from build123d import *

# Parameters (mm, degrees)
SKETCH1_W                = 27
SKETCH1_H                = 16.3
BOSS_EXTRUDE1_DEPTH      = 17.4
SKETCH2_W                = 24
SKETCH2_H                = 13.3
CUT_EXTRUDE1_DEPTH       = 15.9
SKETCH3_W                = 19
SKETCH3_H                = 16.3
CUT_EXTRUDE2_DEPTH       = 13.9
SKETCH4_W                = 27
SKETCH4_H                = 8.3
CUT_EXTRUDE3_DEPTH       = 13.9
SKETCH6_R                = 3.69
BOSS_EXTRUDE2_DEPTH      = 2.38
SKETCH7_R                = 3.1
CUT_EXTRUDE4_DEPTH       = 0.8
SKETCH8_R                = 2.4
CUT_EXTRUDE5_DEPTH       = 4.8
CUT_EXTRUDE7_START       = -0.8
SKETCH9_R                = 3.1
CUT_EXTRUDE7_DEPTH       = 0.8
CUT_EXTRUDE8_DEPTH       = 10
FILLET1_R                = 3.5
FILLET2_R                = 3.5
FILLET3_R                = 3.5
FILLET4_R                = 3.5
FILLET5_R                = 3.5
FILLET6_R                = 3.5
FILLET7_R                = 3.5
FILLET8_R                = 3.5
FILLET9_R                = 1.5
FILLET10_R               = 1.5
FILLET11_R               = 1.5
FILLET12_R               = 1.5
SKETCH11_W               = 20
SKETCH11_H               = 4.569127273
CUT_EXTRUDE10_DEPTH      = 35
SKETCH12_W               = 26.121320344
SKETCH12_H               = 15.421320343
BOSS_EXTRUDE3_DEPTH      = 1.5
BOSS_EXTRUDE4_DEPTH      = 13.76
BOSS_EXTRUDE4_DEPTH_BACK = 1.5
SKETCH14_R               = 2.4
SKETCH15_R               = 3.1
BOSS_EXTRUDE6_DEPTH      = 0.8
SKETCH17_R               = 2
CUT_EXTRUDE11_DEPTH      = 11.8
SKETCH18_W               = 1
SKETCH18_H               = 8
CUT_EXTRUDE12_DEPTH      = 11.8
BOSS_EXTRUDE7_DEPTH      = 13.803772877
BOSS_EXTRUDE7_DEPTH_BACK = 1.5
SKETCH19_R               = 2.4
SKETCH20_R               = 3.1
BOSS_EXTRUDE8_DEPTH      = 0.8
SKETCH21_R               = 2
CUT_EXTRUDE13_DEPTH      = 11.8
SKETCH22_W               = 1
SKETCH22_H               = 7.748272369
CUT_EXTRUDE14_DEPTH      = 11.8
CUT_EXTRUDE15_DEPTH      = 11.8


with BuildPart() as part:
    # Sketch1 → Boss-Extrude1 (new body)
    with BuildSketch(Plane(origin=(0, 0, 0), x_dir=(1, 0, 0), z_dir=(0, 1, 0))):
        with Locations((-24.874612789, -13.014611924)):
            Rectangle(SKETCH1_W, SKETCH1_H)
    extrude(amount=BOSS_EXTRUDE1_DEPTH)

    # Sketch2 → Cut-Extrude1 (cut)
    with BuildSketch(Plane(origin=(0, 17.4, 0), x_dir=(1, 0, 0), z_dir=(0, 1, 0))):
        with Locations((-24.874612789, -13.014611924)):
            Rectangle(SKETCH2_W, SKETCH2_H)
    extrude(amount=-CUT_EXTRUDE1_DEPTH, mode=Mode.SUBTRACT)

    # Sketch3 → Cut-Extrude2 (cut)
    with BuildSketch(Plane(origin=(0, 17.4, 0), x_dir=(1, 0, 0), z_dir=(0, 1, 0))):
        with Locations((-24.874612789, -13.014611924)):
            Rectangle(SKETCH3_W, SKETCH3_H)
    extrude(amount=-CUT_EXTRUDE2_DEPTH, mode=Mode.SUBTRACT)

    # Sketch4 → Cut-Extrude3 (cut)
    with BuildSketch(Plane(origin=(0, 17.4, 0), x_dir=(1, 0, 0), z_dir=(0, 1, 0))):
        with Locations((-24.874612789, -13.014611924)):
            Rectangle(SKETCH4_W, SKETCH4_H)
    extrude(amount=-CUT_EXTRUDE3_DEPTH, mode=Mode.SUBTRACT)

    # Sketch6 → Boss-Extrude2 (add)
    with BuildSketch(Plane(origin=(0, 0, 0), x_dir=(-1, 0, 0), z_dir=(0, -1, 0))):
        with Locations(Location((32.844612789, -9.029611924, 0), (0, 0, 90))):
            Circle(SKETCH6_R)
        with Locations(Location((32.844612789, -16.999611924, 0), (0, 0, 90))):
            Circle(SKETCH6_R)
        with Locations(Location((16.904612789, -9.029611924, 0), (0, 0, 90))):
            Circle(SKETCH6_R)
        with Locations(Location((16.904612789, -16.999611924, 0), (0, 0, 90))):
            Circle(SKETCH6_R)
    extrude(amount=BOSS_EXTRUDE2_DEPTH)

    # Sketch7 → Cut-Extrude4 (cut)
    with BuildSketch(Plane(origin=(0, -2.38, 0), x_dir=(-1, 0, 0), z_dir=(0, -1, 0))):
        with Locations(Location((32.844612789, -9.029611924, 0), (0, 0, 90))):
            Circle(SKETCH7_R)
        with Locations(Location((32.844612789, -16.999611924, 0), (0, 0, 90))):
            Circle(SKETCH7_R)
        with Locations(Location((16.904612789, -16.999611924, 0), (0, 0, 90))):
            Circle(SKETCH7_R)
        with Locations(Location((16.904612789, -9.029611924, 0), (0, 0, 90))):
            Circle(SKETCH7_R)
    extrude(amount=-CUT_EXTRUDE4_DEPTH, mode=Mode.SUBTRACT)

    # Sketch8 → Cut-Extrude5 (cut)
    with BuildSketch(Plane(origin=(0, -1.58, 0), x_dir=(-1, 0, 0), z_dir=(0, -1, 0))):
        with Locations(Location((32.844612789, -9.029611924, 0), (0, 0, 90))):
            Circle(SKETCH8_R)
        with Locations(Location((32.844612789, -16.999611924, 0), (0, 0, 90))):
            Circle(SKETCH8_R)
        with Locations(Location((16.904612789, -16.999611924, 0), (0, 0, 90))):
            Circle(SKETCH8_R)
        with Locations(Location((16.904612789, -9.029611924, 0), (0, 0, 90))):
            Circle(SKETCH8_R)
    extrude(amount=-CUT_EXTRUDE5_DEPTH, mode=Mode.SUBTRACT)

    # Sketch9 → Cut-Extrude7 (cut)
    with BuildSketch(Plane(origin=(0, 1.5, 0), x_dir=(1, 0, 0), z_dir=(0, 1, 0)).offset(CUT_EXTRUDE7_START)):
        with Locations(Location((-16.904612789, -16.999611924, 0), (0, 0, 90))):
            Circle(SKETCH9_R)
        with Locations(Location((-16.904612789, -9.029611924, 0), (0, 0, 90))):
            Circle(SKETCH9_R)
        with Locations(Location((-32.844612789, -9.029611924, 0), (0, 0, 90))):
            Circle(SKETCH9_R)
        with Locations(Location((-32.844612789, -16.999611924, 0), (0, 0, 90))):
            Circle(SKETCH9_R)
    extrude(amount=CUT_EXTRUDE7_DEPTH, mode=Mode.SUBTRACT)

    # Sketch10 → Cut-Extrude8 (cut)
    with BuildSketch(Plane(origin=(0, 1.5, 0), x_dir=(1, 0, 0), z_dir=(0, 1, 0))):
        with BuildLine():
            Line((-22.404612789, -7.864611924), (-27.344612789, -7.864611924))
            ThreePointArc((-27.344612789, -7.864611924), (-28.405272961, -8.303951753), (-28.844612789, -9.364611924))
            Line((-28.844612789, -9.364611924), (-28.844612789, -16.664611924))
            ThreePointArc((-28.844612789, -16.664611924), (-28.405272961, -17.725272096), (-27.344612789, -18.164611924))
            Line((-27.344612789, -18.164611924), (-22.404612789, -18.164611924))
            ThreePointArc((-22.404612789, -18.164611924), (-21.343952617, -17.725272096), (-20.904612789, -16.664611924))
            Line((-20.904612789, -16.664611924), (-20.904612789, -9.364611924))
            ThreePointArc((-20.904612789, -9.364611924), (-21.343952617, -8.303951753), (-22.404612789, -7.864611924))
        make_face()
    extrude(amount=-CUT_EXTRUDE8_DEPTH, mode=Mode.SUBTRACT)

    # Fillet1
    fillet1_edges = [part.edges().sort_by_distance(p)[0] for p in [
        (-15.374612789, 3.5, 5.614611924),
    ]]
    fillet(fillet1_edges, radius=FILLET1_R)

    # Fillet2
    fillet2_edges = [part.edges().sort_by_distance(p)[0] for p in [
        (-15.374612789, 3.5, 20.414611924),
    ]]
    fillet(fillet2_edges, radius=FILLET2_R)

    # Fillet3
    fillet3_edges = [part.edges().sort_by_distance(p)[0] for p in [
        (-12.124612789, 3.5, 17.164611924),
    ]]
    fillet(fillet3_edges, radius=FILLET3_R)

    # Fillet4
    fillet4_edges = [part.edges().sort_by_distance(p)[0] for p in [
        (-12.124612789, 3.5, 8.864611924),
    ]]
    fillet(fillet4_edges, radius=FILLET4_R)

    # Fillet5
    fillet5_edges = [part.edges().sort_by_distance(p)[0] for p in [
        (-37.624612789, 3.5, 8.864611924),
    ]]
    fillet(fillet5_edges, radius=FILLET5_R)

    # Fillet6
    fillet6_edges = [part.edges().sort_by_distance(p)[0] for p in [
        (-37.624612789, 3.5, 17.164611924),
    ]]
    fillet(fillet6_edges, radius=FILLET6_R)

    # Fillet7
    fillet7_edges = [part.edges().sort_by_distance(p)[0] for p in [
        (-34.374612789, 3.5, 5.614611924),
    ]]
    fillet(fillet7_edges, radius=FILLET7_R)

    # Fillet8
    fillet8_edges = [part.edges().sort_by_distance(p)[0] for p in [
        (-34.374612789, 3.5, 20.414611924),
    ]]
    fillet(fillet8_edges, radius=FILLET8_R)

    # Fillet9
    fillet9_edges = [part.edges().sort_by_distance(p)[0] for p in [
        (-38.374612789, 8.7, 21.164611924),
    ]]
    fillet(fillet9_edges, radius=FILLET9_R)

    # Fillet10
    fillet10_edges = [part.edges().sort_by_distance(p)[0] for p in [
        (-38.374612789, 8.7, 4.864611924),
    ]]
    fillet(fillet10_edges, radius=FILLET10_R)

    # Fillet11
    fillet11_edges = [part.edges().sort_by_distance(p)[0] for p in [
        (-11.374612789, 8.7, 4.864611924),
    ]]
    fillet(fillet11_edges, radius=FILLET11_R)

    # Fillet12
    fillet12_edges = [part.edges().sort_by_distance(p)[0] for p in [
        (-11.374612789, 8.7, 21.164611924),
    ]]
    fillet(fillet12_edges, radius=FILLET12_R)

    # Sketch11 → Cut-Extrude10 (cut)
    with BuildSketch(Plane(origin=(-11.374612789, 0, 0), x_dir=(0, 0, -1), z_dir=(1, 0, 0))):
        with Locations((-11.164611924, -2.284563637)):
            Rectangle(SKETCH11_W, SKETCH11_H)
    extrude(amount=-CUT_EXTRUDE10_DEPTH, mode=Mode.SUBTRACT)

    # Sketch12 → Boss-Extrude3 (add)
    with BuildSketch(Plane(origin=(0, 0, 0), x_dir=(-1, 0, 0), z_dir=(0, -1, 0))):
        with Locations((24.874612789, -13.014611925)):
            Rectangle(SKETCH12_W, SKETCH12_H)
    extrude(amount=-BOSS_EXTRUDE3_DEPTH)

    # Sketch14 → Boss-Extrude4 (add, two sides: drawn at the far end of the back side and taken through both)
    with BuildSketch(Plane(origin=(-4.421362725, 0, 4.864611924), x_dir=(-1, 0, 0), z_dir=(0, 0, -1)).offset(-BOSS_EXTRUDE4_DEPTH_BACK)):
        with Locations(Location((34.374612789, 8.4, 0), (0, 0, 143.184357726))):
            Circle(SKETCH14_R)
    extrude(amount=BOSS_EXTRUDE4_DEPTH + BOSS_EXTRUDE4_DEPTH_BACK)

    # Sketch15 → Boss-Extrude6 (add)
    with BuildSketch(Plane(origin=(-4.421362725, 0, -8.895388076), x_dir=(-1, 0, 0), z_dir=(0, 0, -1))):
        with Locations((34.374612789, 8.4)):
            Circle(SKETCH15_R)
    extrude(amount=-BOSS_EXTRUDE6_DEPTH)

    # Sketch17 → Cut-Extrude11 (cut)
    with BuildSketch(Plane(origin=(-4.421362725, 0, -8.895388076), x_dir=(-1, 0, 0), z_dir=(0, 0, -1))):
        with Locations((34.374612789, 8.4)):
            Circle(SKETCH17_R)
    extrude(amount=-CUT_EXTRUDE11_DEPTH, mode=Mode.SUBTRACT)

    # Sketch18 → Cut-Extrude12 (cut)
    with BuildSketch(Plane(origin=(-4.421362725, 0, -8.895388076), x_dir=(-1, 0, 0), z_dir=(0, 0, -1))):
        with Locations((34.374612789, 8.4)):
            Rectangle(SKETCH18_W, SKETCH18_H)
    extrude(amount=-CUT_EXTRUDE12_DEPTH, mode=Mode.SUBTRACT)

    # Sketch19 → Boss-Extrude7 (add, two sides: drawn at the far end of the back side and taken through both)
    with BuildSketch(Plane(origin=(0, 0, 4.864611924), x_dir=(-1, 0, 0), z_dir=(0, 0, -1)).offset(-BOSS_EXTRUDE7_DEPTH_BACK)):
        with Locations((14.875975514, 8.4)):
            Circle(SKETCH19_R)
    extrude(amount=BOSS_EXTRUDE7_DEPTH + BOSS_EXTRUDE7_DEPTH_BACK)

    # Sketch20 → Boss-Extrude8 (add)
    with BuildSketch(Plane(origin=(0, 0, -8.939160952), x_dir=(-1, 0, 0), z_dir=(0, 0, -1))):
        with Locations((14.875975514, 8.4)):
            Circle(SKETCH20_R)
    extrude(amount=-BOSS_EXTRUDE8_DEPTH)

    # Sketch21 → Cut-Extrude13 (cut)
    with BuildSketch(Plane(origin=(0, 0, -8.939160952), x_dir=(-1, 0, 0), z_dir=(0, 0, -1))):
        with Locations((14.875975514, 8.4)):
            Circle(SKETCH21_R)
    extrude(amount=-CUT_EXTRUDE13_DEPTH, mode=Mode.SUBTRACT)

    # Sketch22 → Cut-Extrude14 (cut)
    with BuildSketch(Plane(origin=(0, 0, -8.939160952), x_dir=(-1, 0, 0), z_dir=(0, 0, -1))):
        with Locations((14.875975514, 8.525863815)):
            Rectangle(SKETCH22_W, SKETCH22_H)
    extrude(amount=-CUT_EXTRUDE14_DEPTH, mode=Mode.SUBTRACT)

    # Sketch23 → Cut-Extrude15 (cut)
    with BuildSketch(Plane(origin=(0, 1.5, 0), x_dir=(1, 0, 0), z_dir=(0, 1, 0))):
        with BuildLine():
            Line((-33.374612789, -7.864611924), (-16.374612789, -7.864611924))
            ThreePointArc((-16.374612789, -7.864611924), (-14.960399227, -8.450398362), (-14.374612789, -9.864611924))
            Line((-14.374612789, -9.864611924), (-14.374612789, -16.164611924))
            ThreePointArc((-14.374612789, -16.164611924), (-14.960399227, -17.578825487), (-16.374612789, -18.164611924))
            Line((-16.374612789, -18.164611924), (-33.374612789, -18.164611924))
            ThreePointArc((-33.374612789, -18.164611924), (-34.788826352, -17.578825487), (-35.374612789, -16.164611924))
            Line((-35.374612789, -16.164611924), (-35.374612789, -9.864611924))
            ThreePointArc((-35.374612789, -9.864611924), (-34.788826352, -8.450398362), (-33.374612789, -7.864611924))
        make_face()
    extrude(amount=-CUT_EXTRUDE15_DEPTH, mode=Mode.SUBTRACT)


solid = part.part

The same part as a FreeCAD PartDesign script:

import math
import FreeCAD as App
import Part
import Sketcher

V = App.Vector


def edges_at(feature, points):
    """Names of the edges that pass closest to the given points."""
    edges = feature.Shape.Edges
    near = lambda p: min(range(len(edges)), key=lambda i: edges[i].distToShape(Part.Vertex(*p))[0])
    return sorted({f"Edge{near(p) + 1}" for p in points})


def add_polygon(sketch, points):
    """Adds a closed chain of lines whose ends are joined by coincident constraints."""
    first, n = sketch.GeometryCount, len(points)
    for a, b in zip(points, points[1:] + points[:1]):
        sketch.addGeometry(Part.LineSegment(App.Vector(*a, 0), App.Vector(*b, 0)), False)
    for i in range(n):
        sketch.addConstraint(Sketcher.Constraint("Coincident", first + i, 2, first + (i + 1) % n, 1))

doc = App.newDocument("Part")
body = doc.addObject("PartDesign::Body", "Body")

# Sketch on XZ plane
sketch1 = doc.addObject("Sketcher::SketchObject", "Sketch")
body.addObject(sketch1)
sketch1.AttachmentSupport = (doc.XZ_Plane, [""])
sketch1.MapMode = "FlatFace"
add_polygon(sketch1, [(-38, 5), (-38, 21), (-11, 21), (-11, 5)])  # lines 0-3
sketch1.addConstraint(Sketcher.Constraint("Vertical", 0))
sketch1.addConstraint(Sketcher.Constraint("Horizontal", 1))
sketch1.addConstraint(Sketcher.Constraint("Vertical", 2))
sketch1.addConstraint(Sketcher.Constraint("Horizontal", 3))
sketch1.addConstraint(Sketcher.Constraint("DistanceX", 1, 1, 1, 2, 27.0))
sketch1.addConstraint(Sketcher.Constraint("DistanceY", 0, 1, 0, 2, 16.3))
sketch1.addConstraint(Sketcher.Constraint("DistanceY", -1, 1, 0, 2, 21.164612))
sketch1.addConstraint(Sketcher.Constraint("DistanceX", 0, 2, -1, 1, 38.374613))
pad1 = doc.addObject("PartDesign::Pad", "Pad")
body.addObject(pad1)
pad1.Profile = sketch1
pad1.Length = 17.4
pad1.Reversed = True

# Sketch on XZ plane
sketch2 = doc.addObject("Sketcher::SketchObject", "Sketch001")
body.addObject(sketch2)
sketch2.AttachmentSupport = (doc.XZ_Plane, [""])
sketch2.MapMode = "FlatFace"
sketch2.AttachmentOffset = App.Placement(V(0, 0, -17.4), App.Rotation())
add_polygon(sketch2, [(-37, 6), (-37, 20), (-13, 20), (-13, 6)])  # lines 0-3
sketch2.addConstraint(Sketcher.Constraint("Vertical", 0))
sketch2.addConstraint(Sketcher.Constraint("Horizontal", 1))
sketch2.addConstraint(Sketcher.Constraint("Vertical", 2))
sketch2.addConstraint(Sketcher.Constraint("Horizontal", 3))
sketch2.addConstraint(Sketcher.Constraint("DistanceX", 1, 1, 1, 2, 24.0))
sketch2.addConstraint(Sketcher.Constraint("DistanceY", 0, 1, 0, 2, 13.3))
sketch2.addConstraint(Sketcher.Constraint("DistanceY", -1, 1, 0, 2, 19.664612))
sketch2.addConstraint(Sketcher.Constraint("DistanceX", 0, 2, -1, 1, 36.874613))
pocket1 = doc.addObject("PartDesign::Pocket", "Pocket")
body.addObject(pocket1)
pocket1.Profile = sketch2
pocket1.Length = 15.9
pocket1.Reversed = True

# Sketch on XZ plane
sketch3 = doc.addObject("Sketcher::SketchObject", "Sketch002")
body.addObject(sketch3)
sketch3.AttachmentSupport = (doc.XZ_Plane, [""])
sketch3.MapMode = "FlatFace"
sketch3.AttachmentOffset = App.Placement(V(0, 0, -17.4), App.Rotation())
add_polygon(sketch3, [(-34, 5), (-34, 21), (-15, 21), (-15, 5)])  # lines 0-3
sketch3.addConstraint(Sketcher.Constraint("Vertical", 0))
sketch3.addConstraint(Sketcher.Constraint("Horizontal", 1))
sketch3.addConstraint(Sketcher.Constraint("Vertical", 2))
sketch3.addConstraint(Sketcher.Constraint("Horizontal", 3))
sketch3.addConstraint(Sketcher.Constraint("DistanceX", 1, 1, 1, 2, 19.0))
sketch3.addConstraint(Sketcher.Constraint("DistanceY", 0, 1, 0, 2, 16.3))
sketch3.addConstraint(Sketcher.Constraint("DistanceY", -1, 1, 0, 2, 21.164612))
sketch3.addConstraint(Sketcher.Constraint("DistanceX", 0, 2, -1, 1, 34.374613))
pocket2 = doc.addObject("PartDesign::Pocket", "Pocket001")
body.addObject(pocket2)
pocket2.Profile = sketch3
pocket2.Length = 13.9
pocket2.Reversed = True

# Sketch on XZ plane
sketch4 = doc.addObject("Sketcher::SketchObject", "Sketch003")
body.addObject(sketch4)
sketch4.AttachmentSupport = (doc.XZ_Plane, [""])
sketch4.MapMode = "FlatFace"
sketch4.AttachmentOffset = App.Placement(V(0, 0, -17.4), App.Rotation())
add_polygon(sketch4, [(-38, 9), (-38, 17), (-11, 17), (-11, 9)])  # lines 0-3
sketch4.addConstraint(Sketcher.Constraint("Vertical", 0))
sketch4.addConstraint(Sketcher.Constraint("Horizontal", 1))
sketch4.addConstraint(Sketcher.Constraint("Vertical", 2))
sketch4.addConstraint(Sketcher.Constraint("Horizontal", 3))
sketch4.addConstraint(Sketcher.Constraint("DistanceX", 1, 1, 1, 2, 27.0))
sketch4.addConstraint(Sketcher.Constraint("DistanceY", 0, 1, 0, 2, 8.3))
sketch4.addConstraint(Sketcher.Constraint("DistanceY", -1, 1, 0, 2, 17.164612))
sketch4.addConstraint(Sketcher.Constraint("DistanceX", 0, 2, -1, 1, 38.374613))
pocket3 = doc.addObject("PartDesign::Pocket", "Pocket002")
body.addObject(pocket3)
pocket3.Profile = sketch4
pocket3.Length = 13.9
pocket3.Reversed = True

# Sketch on XZ plane
sketch5 = doc.addObject("Sketcher::SketchObject", "Sketch004")
body.addObject(sketch5)
sketch5.AttachmentSupport = (doc.XZ_Plane, [""])
sketch5.MapMode = "FlatFace"
sketch5.addGeometry(Part.Circle(V(-32.8, 9, 0), V(0, 0, 1), 3.7), False)
sketch5.addGeometry(Part.Circle(V(-32.8, 17, 0), V(0, 0, 1), 3.7), False)
sketch5.addGeometry(Part.Circle(V(-16.9, 9, 0), V(0, 0, 1), 3.7), False)
sketch5.addGeometry(Part.Circle(V(-16.9, 17, 0), V(0, 0, 1), 3.7), False)
sketch5.addConstraint(Sketcher.Constraint("Equal", 0, 1))
sketch5.addConstraint(Sketcher.Constraint("Equal", 1, 2))
sketch5.addConstraint(Sketcher.Constraint("Equal", 2, 3))
sketch5.addConstraint(Sketcher.Constraint("Horizontal", 0, 3, 2, 3))
sketch5.addConstraint(Sketcher.Constraint("Horizontal", 1, 3, 3, 3))
sketch5.addConstraint(Sketcher.Constraint("Vertical", 0, 3, 1, 3))
sketch5.addConstraint(Sketcher.Constraint("Vertical", 2, 3, 3, 3))
sketch5.addConstraint(Sketcher.Constraint("Diameter", 0, 7.38))
sketch5.addConstraint(Sketcher.Constraint("DistanceY", 0, 3, 1, 3, 7.97))
sketch5.addConstraint(Sketcher.Constraint("DistanceX", 0, 3, 2, 3, 15.94))
sketch5.addConstraint(Sketcher.Constraint("DistanceY", -1, 1, 0, 3, 9.029612))
sketch5.addConstraint(Sketcher.Constraint("DistanceX", 0, 3, -1, 1, 32.844613))
pad2 = doc.addObject("PartDesign::Pad", "Pad001")
body.addObject(pad2)
pad2.Profile = sketch5
pad2.Length = 2.38

# Sketch on XZ plane
sketch6 = doc.addObject("Sketcher::SketchObject", "Sketch005")
body.addObject(sketch6)
sketch6.AttachmentSupport = (doc.XZ_Plane, [""])
sketch6.MapMode = "FlatFace"
sketch6.AttachmentOffset = App.Placement(V(0, 0, 2.38), App.Rotation())
sketch6.addGeometry(Part.Circle(V(-32.8, 9, 0), V(0, 0, 1), 3.1), False)
sketch6.addGeometry(Part.Circle(V(-32.8, 17, 0), V(0, 0, 1), 3.1), False)
sketch6.addGeometry(Part.Circle(V(-16.9, 17, 0), V(0, 0, 1), 3.1), False)
sketch6.addGeometry(Part.Circle(V(-16.9, 9, 0), V(0, 0, 1), 3.1), False)
sketch6.addConstraint(Sketcher.Constraint("Equal", 0, 1))
sketch6.addConstraint(Sketcher.Constraint("Equal", 1, 2))
sketch6.addConstraint(Sketcher.Constraint("Equal", 2, 3))
sketch6.addConstraint(Sketcher.Constraint("Horizontal", 1, 3, 2, 3))
sketch6.addConstraint(Sketcher.Constraint("Horizontal", 0, 3, 3, 3))
sketch6.addConstraint(Sketcher.Constraint("Vertical", 0, 3, 1, 3))
sketch6.addConstraint(Sketcher.Constraint("Vertical", 2, 3, 3, 3))
sketch6.addConstraint(Sketcher.Constraint("Diameter", 0, 6.2))
sketch6.addConstraint(Sketcher.Constraint("DistanceY", 0, 3, 1, 3, 7.97))
sketch6.addConstraint(Sketcher.Constraint("DistanceX", 1, 3, 2, 3, 15.94))
sketch6.addConstraint(Sketcher.Constraint("DistanceY", -1, 1, 0, 3, 9.029612))
sketch6.addConstraint(Sketcher.Constraint("DistanceX", 0, 3, -1, 1, 32.844613))
pocket4 = doc.addObject("PartDesign::Pocket", "Pocket003")
body.addObject(pocket4)
pocket4.Profile = sketch6
pocket4.Length = 0.8

# Sketch on XZ plane
sketch7 = doc.addObject("Sketcher::SketchObject", "Sketch006")
body.addObject(sketch7)
sketch7.AttachmentSupport = (doc.XZ_Plane, [""])
sketch7.MapMode = "FlatFace"
sketch7.AttachmentOffset = App.Placement(V(0, 0, 1.58), App.Rotation())
sketch7.addGeometry(Part.Circle(V(-32.8, 9, 0), V(0, 0, 1), 2.4), False)
sketch7.addGeometry(Part.Circle(V(-32.8, 17, 0), V(0, 0, 1), 2.4), False)
sketch7.addGeometry(Part.Circle(V(-16.9, 17, 0), V(0, 0, 1), 2.4), False)
sketch7.addGeometry(Part.Circle(V(-16.9, 9, 0), V(0, 0, 1), 2.4), False)
sketch7.addConstraint(Sketcher.Constraint("Equal", 0, 1))
sketch7.addConstraint(Sketcher.Constraint("Equal", 1, 2))
sketch7.addConstraint(Sketcher.Constraint("Equal", 2, 3))
sketch7.addConstraint(Sketcher.Constraint("Horizontal", 1, 3, 2, 3))
sketch7.addConstraint(Sketcher.Constraint("Horizontal", 0, 3, 3, 3))
sketch7.addConstraint(Sketcher.Constraint("Vertical", 0, 3, 1, 3))
sketch7.addConstraint(Sketcher.Constraint("Vertical", 2, 3, 3, 3))
sketch7.addConstraint(Sketcher.Constraint("Diameter", 0, 4.8))
sketch7.addConstraint(Sketcher.Constraint("DistanceY", 0, 3, 1, 3, 7.97))
sketch7.addConstraint(Sketcher.Constraint("DistanceX", 1, 3, 2, 3, 15.94))
sketch7.addConstraint(Sketcher.Constraint("DistanceY", -1, 1, 0, 3, 9.029612))
sketch7.addConstraint(Sketcher.Constraint("DistanceX", 0, 3, -1, 1, 32.844613))
pocket5 = doc.addObject("PartDesign::Pocket", "Pocket004")
body.addObject(pocket5)
pocket5.Profile = sketch7
pocket5.Length = 4.8

# Sketch on XZ plane
sketch8 = doc.addObject("Sketcher::SketchObject", "Sketch007")
body.addObject(sketch8)
sketch8.AttachmentSupport = (doc.XZ_Plane, [""])
sketch8.MapMode = "FlatFace"
sketch8.AttachmentOffset = App.Placement(V(0, 0, -0.7), App.Rotation())
sketch8.addGeometry(Part.Circle(V(-16.9, 17, 0), V(0, 0, 1), 3.1), False)
sketch8.addGeometry(Part.Circle(V(-16.9, 9, 0), V(0, 0, 1), 3.1), False)
sketch8.addGeometry(Part.Circle(V(-32.8, 9, 0), V(0, 0, 1), 3.1), False)
sketch8.addGeometry(Part.Circle(V(-32.8, 17, 0), V(0, 0, 1), 3.1), False)
sketch8.addConstraint(Sketcher.Constraint("Equal", 0, 1))
sketch8.addConstraint(Sketcher.Constraint("Equal", 1, 2))
sketch8.addConstraint(Sketcher.Constraint("Equal", 2, 3))
sketch8.addConstraint(Sketcher.Constraint("Horizontal", 1, 3, 2, 3))
sketch8.addConstraint(Sketcher.Constraint("Horizontal", 0, 3, 3, 3))
sketch8.addConstraint(Sketcher.Constraint("Vertical", 0, 3, 1, 3))
sketch8.addConstraint(Sketcher.Constraint("Vertical", 2, 3, 3, 3))
sketch8.addConstraint(Sketcher.Constraint("Diameter", 0, 6.2))
sketch8.addConstraint(Sketcher.Constraint("DistanceY", 1, 3, 0, 3, 7.97))
sketch8.addConstraint(Sketcher.Constraint("DistanceX", 2, 3, 1, 3, 15.94))
sketch8.addConstraint(Sketcher.Constraint("DistanceY", -1, 1, 0, 3, 16.999612))
sketch8.addConstraint(Sketcher.Constraint("DistanceX", 0, 3, -1, 1, 16.904613))
pocket6 = doc.addObject("PartDesign::Pocket", "Pocket005")
body.addObject(pocket6)
pocket6.Profile = sketch8
pocket6.Length = 0.8

# Sketch on XZ plane
sketch9 = doc.addObject("Sketcher::SketchObject", "Sketch008")
body.addObject(sketch9)
sketch9.AttachmentSupport = (doc.XZ_Plane, [""])
sketch9.MapMode = "FlatFace"
sketch9.AttachmentOffset = App.Placement(V(0, 0, -1.5), App.Rotation())
sketch9.addGeometry(Part.LineSegment(V(-22.4, 7.9, 0), V(-27.3, 7.9, 0)), False)
sketch9.addGeometry(Part.ArcOfCircle(Part.Circle(V(-27.3, 9.4, 0), V(0, 0, 1), 1.5), math.radians(-180), math.radians(-90)), False)
sketch9.addGeometry(Part.LineSegment(V(-28.8, 9.4, 0), V(-28.8, 16.7, 0)), False)
sketch9.addGeometry(Part.ArcOfCircle(Part.Circle(V(-27.3, 16.7, 0), V(0, 0, 1), 1.5), math.radians(90), math.radians(180)), False)
sketch9.addGeometry(Part.LineSegment(V(-27.3, 18.2, 0), V(-22.4, 18.2, 0)), False)
sketch9.addGeometry(Part.ArcOfCircle(Part.Circle(V(-22.4, 16.7, 0), V(0, 0, 1), 1.5), math.radians(0), math.radians(90)), False)
sketch9.addGeometry(Part.LineSegment(V(-20.9, 16.7, 0), V(-20.9, 9.4, 0)), False)
sketch9.addGeometry(Part.ArcOfCircle(Part.Circle(V(-22.4, 9.4, 0), V(0, 0, 1), 1.5), math.radians(-90), math.radians(0)), False)
sketch9.addConstraint(Sketcher.Constraint("Tangent", 0, 2, 1, 2))
sketch9.addConstraint(Sketcher.Constraint("Tangent", 1, 1, 2, 1))
sketch9.addConstraint(Sketcher.Constraint("Tangent", 2, 2, 3, 2))
sketch9.addConstraint(Sketcher.Constraint("Tangent", 3, 1, 4, 1))
sketch9.addConstraint(Sketcher.Constraint("Tangent", 4, 2, 5, 2))
sketch9.addConstraint(Sketcher.Constraint("Tangent", 5, 1, 6, 1))
sketch9.addConstraint(Sketcher.Constraint("Tangent", 6, 2, 7, 2))
sketch9.addConstraint(Sketcher.Constraint("Tangent", 7, 1, 0, 1))
sketch9.addConstraint(Sketcher.Constraint("Horizontal", 0))
sketch9.addConstraint(Sketcher.Constraint("Vertical", 2))
sketch9.addConstraint(Sketcher.Constraint("Horizontal", 4))
sketch9.addConstraint(Sketcher.Constraint("Vertical", 6))
sketch9.addConstraint(Sketcher.Constraint("Equal", 1, 3))
sketch9.addConstraint(Sketcher.Constraint("Equal", 3, 5))
sketch9.addConstraint(Sketcher.Constraint("Equal", 5, 7))
sketch9.addConstraint(Sketcher.Constraint("Radius", 1, 1.5))
sketch9.addConstraint(Sketcher.Constraint("DistanceY", 2, 1, 2, 2, 7.3))
sketch9.addConstraint(Sketcher.Constraint("DistanceX", 0, 2, 0, 1, 4.94))
sketch9.addConstraint(Sketcher.Constraint("DistanceY", -1, 1, 1, 3, 9.364612))
sketch9.addConstraint(Sketcher.Constraint("DistanceX", 1, 3, -1, 1, 27.344613))
pocket7 = doc.addObject("PartDesign::Pocket", "Pocket006")
body.addObject(pocket7)
pocket7.Profile = sketch9
pocket7.Length = 10
pocket7.Reversed = True
doc.recompute()

fillet = doc.addObject("PartDesign::Fillet", "Fillet")
body.addObject(fillet)
fillet.Base = (pocket7, edges_at(pocket7, [(-15.375, 3.5, 5.615)]))
fillet.Radius = 3.5
doc.recompute()

fillet2 = doc.addObject("PartDesign::Fillet", "Fillet001")
body.addObject(fillet2)
fillet2.Base = (fillet, edges_at(fillet, [(-15.375, 3.5, 20.415)]))
fillet2.Radius = 3.5
doc.recompute()

fillet3 = doc.addObject("PartDesign::Fillet", "Fillet002")
body.addObject(fillet3)
fillet3.Base = (fillet2, edges_at(fillet2, [(-12.125, 3.5, 17.165)]))
fillet3.Radius = 3.5
doc.recompute()

fillet4 = doc.addObject("PartDesign::Fillet", "Fillet003")
body.addObject(fillet4)
fillet4.Base = (fillet3, edges_at(fillet3, [(-12.125, 3.5, 8.865)]))
fillet4.Radius = 3.5
doc.recompute()

fillet5 = doc.addObject("PartDesign::Fillet", "Fillet004")
body.addObject(fillet5)
fillet5.Base = (fillet4, edges_at(fillet4, [(-37.625, 3.5, 8.865)]))
fillet5.Radius = 3.5
doc.recompute()

fillet6 = doc.addObject("PartDesign::Fillet", "Fillet005")
body.addObject(fillet6)
fillet6.Base = (fillet5, edges_at(fillet5, [(-37.625, 3.5, 17.165)]))
fillet6.Radius = 3.5
doc.recompute()

fillet7 = doc.addObject("PartDesign::Fillet", "Fillet006")
body.addObject(fillet7)
fillet7.Base = (fillet6, edges_at(fillet6, [(-34.375, 3.5, 5.615)]))
fillet7.Radius = 3.5
doc.recompute()

fillet8 = doc.addObject("PartDesign::Fillet", "Fillet007")
body.addObject(fillet8)
fillet8.Base = (fillet7, edges_at(fillet7, [(-34.375, 3.5, 20.415)]))
fillet8.Radius = 3.5
doc.recompute()

fillet9 = doc.addObject("PartDesign::Fillet", "Fillet008")
body.addObject(fillet9)
fillet9.Base = (fillet8, edges_at(fillet8, [(-38.375, 8.7, 21.165)]))
fillet9.Radius = 1.5
doc.recompute()

fillet10 = doc.addObject("PartDesign::Fillet", "Fillet009")
body.addObject(fillet10)
fillet10.Base = (fillet9, edges_at(fillet9, [(-38.375, 8.7, 4.865)]))
fillet10.Radius = 1.5
doc.recompute()

fillet11 = doc.addObject("PartDesign::Fillet", "Fillet010")
body.addObject(fillet11)
fillet11.Base = (fillet10, edges_at(fillet10, [(-11.375, 8.7, 4.865)]))
fillet11.Radius = 1.5
doc.recompute()

fillet12 = doc.addObject("PartDesign::Fillet", "Fillet011")
body.addObject(fillet12)
fillet12.Base = (fillet11, edges_at(fillet11, [(-11.375, 8.7, 21.165)]))
fillet12.Radius = 1.5

# Sketch on YZ plane
sketch10 = doc.addObject("Sketcher::SketchObject", "Sketch009")
body.addObject(sketch10)
sketch10.AttachmentSupport = (doc.YZ_Plane, [""])
sketch10.MapMode = "FlatFace"
sketch10.AttachmentOffset = App.Placement(V(0, 0, -11.374613), App.Rotation())
add_polygon(sketch10, [(0, 21.2), (-4.6, 21.2), (-4.6, 1.2), (0, 1.2)])  # lines 0-3
sketch10.addConstraint(Sketcher.Constraint("Horizontal", 0))
sketch10.addConstraint(Sketcher.Constraint("Vertical", 1))
sketch10.addConstraint(Sketcher.Constraint("Horizontal", 2))
sketch10.addConstraint(Sketcher.Constraint("Vertical", 3))
sketch10.addConstraint(Sketcher.Constraint("PointOnObject", 2, 2, -2))
sketch10.addConstraint(Sketcher.Constraint("DistanceY", 1, 2, 1, 1, 20.0))
sketch10.addConstraint(Sketcher.Constraint("DistanceX", 0, 2, 0, 1, 4.569127))
sketch10.addConstraint(Sketcher.Constraint("DistanceY", -1, 1, 0, 2, 21.164612))
pocket8 = doc.addObject("PartDesign::Pocket", "Pocket007")
body.addObject(pocket8)
pocket8.Profile = sketch10
pocket8.Length = 35

# Sketch on XZ plane
sketch11 = doc.addObject("Sketcher::SketchObject", "Sketch010")
body.addObject(sketch11)
sketch11.AttachmentSupport = (doc.XZ_Plane, [""])
sketch11.MapMode = "FlatFace"
add_polygon(sketch11, [(-12, 5), (-12, 21), (-38, 21), (-38, 5)])  # lines 0-3
sketch11.addConstraint(Sketcher.Constraint("Vertical", 0))
sketch11.addConstraint(Sketcher.Constraint("Horizontal", 1))
sketch11.addConstraint(Sketcher.Constraint("Vertical", 2))
sketch11.addConstraint(Sketcher.Constraint("Horizontal", 3))
sketch11.addConstraint(Sketcher.Constraint("DistanceX", 1, 2, 1, 1, 26.12132))
sketch11.addConstraint(Sketcher.Constraint("DistanceY", 0, 1, 0, 2, 15.42132))
sketch11.addConstraint(Sketcher.Constraint("DistanceY", -1, 1, 2, 2, 5.303952))
sketch11.addConstraint(Sketcher.Constraint("DistanceX", 0, 2, -1, 1, 11.813953))
pad3 = doc.addObject("PartDesign::Pad", "Pad002")
body.addObject(pad3)
pad3.Profile = sketch11
pad3.Length = 1.5
pad3.Reversed = True

# Sketch on XY plane
sketch12 = doc.addObject("Sketcher::SketchObject", "Sketch011")
body.addObject(sketch12)
sketch12.AttachmentSupport = (doc.XY_Plane, [""])
sketch12.MapMode = "FlatFace"
sketch12.AttachmentOffset = App.Placement(V(0, 0, 4.864612), App.Rotation())
sketch12.addGeometry(Part.Circle(V(-38.8, 8.4, 0), V(0, 0, 1), 2.4), False)
sketch12.addConstraint(Sketcher.Constraint("Diameter", 0, 4.8))
sketch12.addConstraint(Sketcher.Constraint("DistanceY", -1, 1, 0, 3, 8.4))
sketch12.addConstraint(Sketcher.Constraint("DistanceX", 0, 3, -1, 1, 38.795976))
pad4 = doc.addObject("PartDesign::Pad", "Pad003")
body.addObject(pad4)
pad4.Profile = sketch12
pad4.Type = "TwoLengths"
pad4.Length = 13.76
pad4.Length2 = 1.5
pad4.Reversed = True

# Sketch on XY plane
sketch13 = doc.addObject("Sketcher::SketchObject", "Sketch012")
body.addObject(sketch13)
sketch13.AttachmentSupport = (doc.XY_Plane, [""])
sketch13.MapMode = "FlatFace"
sketch13.AttachmentOffset = App.Placement(V(0, 0, -8.895388), App.Rotation())
sketch13.addGeometry(Part.Circle(V(-38.8, 8.4, 0), V(0, 0, 1), 3.1), False)
sketch13.addConstraint(Sketcher.Constraint("Diameter", 0, 6.2))
sketch13.addConstraint(Sketcher.Constraint("DistanceY", -1, 1, 0, 3, 8.4))
sketch13.addConstraint(Sketcher.Constraint("DistanceX", 0, 3, -1, 1, 38.795976))
pad5 = doc.addObject("PartDesign::Pad", "Pad004")
body.addObject(pad5)
pad5.Profile = sketch13
pad5.Length = 0.8

# Sketch on XY plane
sketch14 = doc.addObject("Sketcher::SketchObject", "Sketch013")
body.addObject(sketch14)
sketch14.AttachmentSupport = (doc.XY_Plane, [""])
sketch14.MapMode = "FlatFace"
sketch14.AttachmentOffset = App.Placement(V(0, 0, -8.895388), App.Rotation())
sketch14.addGeometry(Part.Circle(V(-38.8, 8.4, 0), V(0, 0, 1), 2), False)
sketch14.addConstraint(Sketcher.Constraint("Diameter", 0, 4.0))
sketch14.addConstraint(Sketcher.Constraint("DistanceY", -1, 1, 0, 3, 8.4))
sketch14.addConstraint(Sketcher.Constraint("DistanceX", 0, 3, -1, 1, 38.795976))
pocket9 = doc.addObject("PartDesign::Pocket", "Pocket008")
body.addObject(pocket9)
pocket9.Profile = sketch14
pocket9.Length = 11.8
pocket9.Reversed = True

# Sketch on XY plane
sketch15 = doc.addObject("Sketcher::SketchObject", "Sketch014")
body.addObject(sketch15)
sketch15.AttachmentSupport = (doc.XY_Plane, [""])
sketch15.MapMode = "FlatFace"
sketch15.AttachmentOffset = App.Placement(V(0, 0, -8.895388), App.Rotation())
add_polygon(sketch15, [(-38.3, 12.4), (-38.3, 4.4), (-39.3, 4.4), (-39.3, 12.4)])  # lines 0-3
sketch15.addConstraint(Sketcher.Constraint("Vertical", 0))
sketch15.addConstraint(Sketcher.Constraint("Horizontal", 1))
sketch15.addConstraint(Sketcher.Constraint("Vertical", 2))
sketch15.addConstraint(Sketcher.Constraint("Horizontal", 3))
sketch15.addConstraint(Sketcher.Constraint("DistanceX", 1, 2, 1, 1, 1.0))
sketch15.addConstraint(Sketcher.Constraint("DistanceY", 0, 2, 0, 1, 8.0))
sketch15.addConstraint(Sketcher.Constraint("DistanceY", -1, 1, 0, 2, 4.4))
sketch15.addConstraint(Sketcher.Constraint("DistanceX", 0, 2, -1, 1, 38.295976))
pocket10 = doc.addObject("PartDesign::Pocket", "Pocket009")
body.addObject(pocket10)
pocket10.Profile = sketch15
pocket10.Length = 11.8
pocket10.Reversed = True

# Sketch on XY plane
sketch16 = doc.addObject("Sketcher::SketchObject", "Sketch015")
body.addObject(sketch16)
sketch16.AttachmentSupport = (doc.XY_Plane, [""])
sketch16.MapMode = "FlatFace"
sketch16.AttachmentOffset = App.Placement(V(0, 0, 4.864612), App.Rotation())
sketch16.addGeometry(Part.Circle(V(-14.9, 8.4, 0), V(0, 0, 1), 2.4), False)
sketch16.addConstraint(Sketcher.Constraint("Diameter", 0, 4.8))
sketch16.addConstraint(Sketcher.Constraint("DistanceY", -1, 1, 0, 3, 8.4))
sketch16.addConstraint(Sketcher.Constraint("DistanceX", 0, 3, -1, 1, 14.875976))
pad6 = doc.addObject("PartDesign::Pad", "Pad005")
body.addObject(pad6)
pad6.Profile = sketch16
pad6.Type = "TwoLengths"
pad6.Length = 13.803773
pad6.Length2 = 1.5
pad6.Reversed = True

# Sketch on XY plane
sketch17 = doc.addObject("Sketcher::SketchObject", "Sketch016")
body.addObject(sketch17)
sketch17.AttachmentSupport = (doc.XY_Plane, [""])
sketch17.MapMode = "FlatFace"
sketch17.AttachmentOffset = App.Placement(V(0, 0, -8.939161), App.Rotation())
sketch17.addGeometry(Part.Circle(V(-14.9, 8.4, 0), V(0, 0, 1), 3.1), False)
sketch17.addConstraint(Sketcher.Constraint("Diameter", 0, 6.2))
sketch17.addConstraint(Sketcher.Constraint("DistanceY", -1, 1, 0, 3, 8.4))
sketch17.addConstraint(Sketcher.Constraint("DistanceX", 0, 3, -1, 1, 14.875976))
pad7 = doc.addObject("PartDesign::Pad", "Pad006")
body.addObject(pad7)
pad7.Profile = sketch17
pad7.Length = 0.8

# Sketch on XY plane
sketch18 = doc.addObject("Sketcher::SketchObject", "Sketch017")
body.addObject(sketch18)
sketch18.AttachmentSupport = (doc.XY_Plane, [""])
sketch18.MapMode = "FlatFace"
sketch18.AttachmentOffset = App.Placement(V(0, 0, -8.939161), App.Rotation())
sketch18.addGeometry(Part.Circle(V(-14.9, 8.4, 0), V(0, 0, 1), 2), False)
sketch18.addConstraint(Sketcher.Constraint("Diameter", 0, 4.0))
sketch18.addConstraint(Sketcher.Constraint("DistanceY", -1, 1, 0, 3, 8.4))
sketch18.addConstraint(Sketcher.Constraint("DistanceX", 0, 3, -1, 1, 14.875976))
pocket11 = doc.addObject("PartDesign::Pocket", "Pocket010")
body.addObject(pocket11)
pocket11.Profile = sketch18
pocket11.Length = 11.8
pocket11.Reversed = True

# Sketch on XY plane
sketch19 = doc.addObject("Sketcher::SketchObject", "Sketch018")
body.addObject(sketch19)
sketch19.AttachmentSupport = (doc.XY_Plane, [""])
sketch19.MapMode = "FlatFace"
sketch19.AttachmentOffset = App.Placement(V(0, 0, -8.939161), App.Rotation())
add_polygon(sketch19, [(-14.4, 12.4), (-14.4, 4.7), (-15.4, 4.7), (-15.4, 12.4)])  # lines 0-3
sketch19.addConstraint(Sketcher.Constraint("Vertical", 0))
sketch19.addConstraint(Sketcher.Constraint("Horizontal", 1))
sketch19.addConstraint(Sketcher.Constraint("Vertical", 2))
sketch19.addConstraint(Sketcher.Constraint("Horizontal", 3))
sketch19.addConstraint(Sketcher.Constraint("DistanceX", 1, 2, 1, 1, 1.0))
sketch19.addConstraint(Sketcher.Constraint("DistanceY", -1, 1, 2, 2, 12.4))
sketch19.addConstraint(Sketcher.Constraint("DistanceY", 0, 2, 0, 1, 7.748272))
sketch19.addConstraint(Sketcher.Constraint("DistanceX", 0, 2, -1, 1, 14.375976))
pocket12 = doc.addObject("PartDesign::Pocket", "Pocket011")
body.addObject(pocket12)
pocket12.Profile = sketch19
pocket12.Length = 11.8
pocket12.Reversed = True

# Sketch on XZ plane
sketch20 = doc.addObject("Sketcher::SketchObject", "Sketch019")
body.addObject(sketch20)
sketch20.AttachmentSupport = (doc.XZ_Plane, [""])
sketch20.MapMode = "FlatFace"
sketch20.AttachmentOffset = App.Placement(V(0, 0, -1.5), App.Rotation())
sketch20.addGeometry(Part.LineSegment(V(-16.4, 7.9, 0), V(-33.4, 7.9, 0)), False)
sketch20.addGeometry(Part.ArcOfCircle(Part.Circle(V(-33.4, 9.9, 0), V(0, 0, 1), 2), math.radians(180), math.radians(270)), False)
sketch20.addGeometry(Part.LineSegment(V(-35.4, 9.9, 0), V(-35.4, 16.2, 0)), False)
sketch20.addGeometry(Part.ArcOfCircle(Part.Circle(V(-33.4, 16.2, 0), V(0, 0, 1), 2), math.radians(90), math.radians(180)), False)
sketch20.addGeometry(Part.LineSegment(V(-33.4, 18.2, 0), V(-16.4, 18.2, 0)), False)
sketch20.addGeometry(Part.ArcOfCircle(Part.Circle(V(-16.4, 16.2, 0), V(0, 0, 1), 2), math.radians(0), math.radians(90)), False)
sketch20.addGeometry(Part.LineSegment(V(-14.4, 16.2, 0), V(-14.4, 9.9, 0)), False)
sketch20.addGeometry(Part.ArcOfCircle(Part.Circle(V(-16.4, 9.9, 0), V(0, 0, 1), 2), math.radians(-90), math.radians(0)), False)
sketch20.addConstraint(Sketcher.Constraint("Tangent", 0, 2, 1, 2))
sketch20.addConstraint(Sketcher.Constraint("Tangent", 1, 1, 2, 1))
sketch20.addConstraint(Sketcher.Constraint("Tangent", 2, 2, 3, 2))
sketch20.addConstraint(Sketcher.Constraint("Tangent", 3, 1, 4, 1))
sketch20.addConstraint(Sketcher.Constraint("Tangent", 4, 2, 5, 2))
sketch20.addConstraint(Sketcher.Constraint("Tangent", 5, 1, 6, 1))
sketch20.addConstraint(Sketcher.Constraint("Tangent", 6, 2, 7, 2))
sketch20.addConstraint(Sketcher.Constraint("Tangent", 7, 1, 0, 1))
sketch20.addConstraint(Sketcher.Constraint("Horizontal", 0))
sketch20.addConstraint(Sketcher.Constraint("Vertical", 2))
sketch20.addConstraint(Sketcher.Constraint("Horizontal", 4))
sketch20.addConstraint(Sketcher.Constraint("Vertical", 6))
sketch20.addConstraint(Sketcher.Constraint("Equal", 1, 3))
sketch20.addConstraint(Sketcher.Constraint("Equal", 3, 5))
sketch20.addConstraint(Sketcher.Constraint("Equal", 5, 7))
sketch20.addConstraint(Sketcher.Constraint("Radius", 1, 2.0))
sketch20.addConstraint(Sketcher.Constraint("DistanceX", 0, 2, 0, 1, 17.0))
sketch20.addConstraint(Sketcher.Constraint("DistanceY", 2, 1, 2, 2, 6.3))
sketch20.addConstraint(Sketcher.Constraint("DistanceY", -1, 1, 1, 3, 9.864612))
sketch20.addConstraint(Sketcher.Constraint("DistanceX", 1, 3, -1, 1, 33.374613))
pocket13 = doc.addObject("PartDesign::Pocket", "Pocket012")
body.addObject(pocket13)
pocket13.Profile = sketch20
pocket13.Length = 11.8
pocket13.Reversed = True

doc.recompute()
